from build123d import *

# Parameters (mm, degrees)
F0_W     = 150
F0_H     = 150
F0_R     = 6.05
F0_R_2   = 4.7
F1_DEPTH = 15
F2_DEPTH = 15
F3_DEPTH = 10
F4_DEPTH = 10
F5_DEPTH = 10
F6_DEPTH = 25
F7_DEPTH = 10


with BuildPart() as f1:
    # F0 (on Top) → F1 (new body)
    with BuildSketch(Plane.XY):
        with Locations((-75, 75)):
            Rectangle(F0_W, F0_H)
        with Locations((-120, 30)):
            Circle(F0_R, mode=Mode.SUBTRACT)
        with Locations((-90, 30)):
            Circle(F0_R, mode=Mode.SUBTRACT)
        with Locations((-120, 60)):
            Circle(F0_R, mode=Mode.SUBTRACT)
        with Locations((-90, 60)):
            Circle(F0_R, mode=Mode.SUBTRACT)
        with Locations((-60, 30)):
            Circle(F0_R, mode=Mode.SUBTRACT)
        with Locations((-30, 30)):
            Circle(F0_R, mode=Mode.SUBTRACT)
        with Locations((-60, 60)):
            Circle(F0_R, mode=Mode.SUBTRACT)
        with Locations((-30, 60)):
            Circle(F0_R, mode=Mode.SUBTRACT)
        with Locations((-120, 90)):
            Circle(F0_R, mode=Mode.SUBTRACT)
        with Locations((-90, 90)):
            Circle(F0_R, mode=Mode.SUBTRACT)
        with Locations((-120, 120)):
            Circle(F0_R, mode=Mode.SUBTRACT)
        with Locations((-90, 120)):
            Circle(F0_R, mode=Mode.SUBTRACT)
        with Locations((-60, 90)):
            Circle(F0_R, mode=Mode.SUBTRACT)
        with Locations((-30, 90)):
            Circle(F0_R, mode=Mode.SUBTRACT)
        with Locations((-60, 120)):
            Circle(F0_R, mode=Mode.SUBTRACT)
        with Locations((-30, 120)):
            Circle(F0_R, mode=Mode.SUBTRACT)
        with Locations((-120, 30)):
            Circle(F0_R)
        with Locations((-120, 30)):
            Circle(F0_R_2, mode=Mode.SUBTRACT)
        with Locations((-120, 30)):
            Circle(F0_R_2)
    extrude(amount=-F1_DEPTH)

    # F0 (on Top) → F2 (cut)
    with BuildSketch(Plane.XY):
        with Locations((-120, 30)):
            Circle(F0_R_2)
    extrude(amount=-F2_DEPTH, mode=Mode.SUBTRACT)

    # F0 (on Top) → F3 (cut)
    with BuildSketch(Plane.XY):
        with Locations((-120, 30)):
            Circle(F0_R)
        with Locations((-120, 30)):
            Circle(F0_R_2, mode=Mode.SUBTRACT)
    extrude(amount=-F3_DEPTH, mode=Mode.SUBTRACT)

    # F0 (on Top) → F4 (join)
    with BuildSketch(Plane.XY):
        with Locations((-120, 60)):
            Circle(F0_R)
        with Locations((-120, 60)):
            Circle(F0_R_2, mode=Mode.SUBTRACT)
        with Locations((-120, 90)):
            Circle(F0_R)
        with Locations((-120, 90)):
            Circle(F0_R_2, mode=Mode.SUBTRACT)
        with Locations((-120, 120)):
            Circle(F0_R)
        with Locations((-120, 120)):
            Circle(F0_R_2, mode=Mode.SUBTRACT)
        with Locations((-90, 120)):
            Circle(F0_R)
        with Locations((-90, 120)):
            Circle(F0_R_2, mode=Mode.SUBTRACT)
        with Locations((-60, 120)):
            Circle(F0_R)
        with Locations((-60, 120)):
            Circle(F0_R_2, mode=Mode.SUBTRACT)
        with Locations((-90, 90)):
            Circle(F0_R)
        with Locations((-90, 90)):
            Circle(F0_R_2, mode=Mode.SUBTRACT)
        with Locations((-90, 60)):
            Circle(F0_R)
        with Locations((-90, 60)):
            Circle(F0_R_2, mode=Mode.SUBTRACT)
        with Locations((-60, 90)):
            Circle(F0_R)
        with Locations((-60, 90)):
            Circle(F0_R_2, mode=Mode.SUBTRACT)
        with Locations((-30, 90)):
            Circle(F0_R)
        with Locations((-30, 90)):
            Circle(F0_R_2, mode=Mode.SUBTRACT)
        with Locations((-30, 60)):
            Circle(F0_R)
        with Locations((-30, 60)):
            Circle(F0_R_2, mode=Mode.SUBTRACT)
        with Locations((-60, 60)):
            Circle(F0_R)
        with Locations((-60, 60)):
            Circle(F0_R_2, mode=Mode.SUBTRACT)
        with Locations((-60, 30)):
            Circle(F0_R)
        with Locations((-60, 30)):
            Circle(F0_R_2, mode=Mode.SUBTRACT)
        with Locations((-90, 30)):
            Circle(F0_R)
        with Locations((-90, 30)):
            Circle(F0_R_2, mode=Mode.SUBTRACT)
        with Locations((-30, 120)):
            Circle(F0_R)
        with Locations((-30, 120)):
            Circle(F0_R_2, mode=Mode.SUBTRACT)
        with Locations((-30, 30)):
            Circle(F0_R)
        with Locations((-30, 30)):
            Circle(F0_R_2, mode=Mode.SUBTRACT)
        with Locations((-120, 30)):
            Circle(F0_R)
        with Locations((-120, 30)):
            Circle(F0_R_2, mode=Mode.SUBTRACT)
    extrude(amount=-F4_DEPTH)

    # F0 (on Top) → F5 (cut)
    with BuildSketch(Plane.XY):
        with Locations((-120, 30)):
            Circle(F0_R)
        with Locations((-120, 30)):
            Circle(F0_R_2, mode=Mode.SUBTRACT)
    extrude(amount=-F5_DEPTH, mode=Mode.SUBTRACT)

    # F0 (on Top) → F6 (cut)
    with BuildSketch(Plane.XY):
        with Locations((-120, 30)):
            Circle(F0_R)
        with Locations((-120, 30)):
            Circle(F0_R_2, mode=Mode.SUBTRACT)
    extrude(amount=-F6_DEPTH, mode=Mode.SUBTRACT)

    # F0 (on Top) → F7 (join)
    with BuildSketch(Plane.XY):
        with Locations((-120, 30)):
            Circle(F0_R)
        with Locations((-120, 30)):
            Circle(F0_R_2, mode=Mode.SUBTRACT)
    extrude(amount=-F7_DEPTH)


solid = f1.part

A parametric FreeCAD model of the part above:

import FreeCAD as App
import Part
import Sketcher

V = App.Vector
Q = App.Units.Quantity


def add_polygon(sketch, points):
    """Adds a closed chain of lines whose ends are joined by coincident constraints."""
    first, n = sketch.GeometryCount, len(points)
    for a, b in zip(points, points[1:] + points[:1]):
        sketch.addGeometry(Part.LineSegment(App.Vector(*a, 0), App.Vector(*b, 0)), False)
    for i in range(n):
        sketch.addConstraint(Sketcher.Constraint("Coincident", first + i, 2, first + (i + 1) % n, 1))

doc = App.newDocument("Part")
body = doc.addObject("PartDesign::Body", "Body")

sketch1 = body.newObject("Sketcher::SketchObject", "Sketch")
sketch1.AttachmentSupport = (doc.getObject("XY_Plane"), [""])
sketch1.MapMode = "FlatFace"
add_polygon(sketch1, [(-150, 150), (-150, 0), (0, 0), (0, 150)])
sketch1.addGeometry(Part.Circle(V(-90, 30, 0), V(0, 0, 1), 6.05), False)
sketch1.addGeometry(Part.Circle(V(-120, 60, 0), V(0, 0, 1), 6.05), False)
sketch1.addGeometry(Part.Circle(V(-90, 60, 0), V(0, 0, 1), 6.05), False)
sketch1.addGeometry(Part.Circle(V(-60, 30, 0), V(0, 0, 1), 6.05), False)
sketch1.addGeometry(Part.Circle(V(-30, 30, 0), V(0, 0, 1), 6.05), False)
sketch1.addGeometry(Part.Circle(V(-60, 60, 0), V(0, 0, 1), 6.05), False)
sketch1.addGeometry(Part.Circle(V(-30, 60, 0), V(0, 0, 1), 6.05), False)
sketch1.addGeometry(Part.Circle(V(-120, 90, 0), V(0, 0, 1), 6.05), False)
sketch1.addGeometry(Part.Circle(V(-90, 90, 0), V(0, 0, 1), 6.05), False)
sketch1.addGeometry(Part.Circle(V(-120, 120, 0), V(0, 0, 1), 6.05), False)
sketch1.addGeometry(Part.Circle(V(-90, 120, 0), V(0, 0, 1), 6.05), False)
sketch1.addGeometry(Part.Circle(V(-60, 90, 0), V(0, 0, 1), 6.05), False)
sketch1.addGeometry(Part.Circle(V(-30, 90, 0), V(0, 0, 1), 6.05), False)
sketch1.addGeometry(Part.Circle(V(-60, 120, 0), V(0, 0, 1), 6.05), False)
sketch1.addGeometry(Part.Circle(V(-30, 120, 0), V(0, 0, 1), 6.05), False)
sketch1.addConstraint(Sketcher.Constraint("Vertical", 0))
sketch1.addConstraint(Sketcher.Constraint("Horizontal", 1))
sketch1.addConstraint(Sketcher.Constraint("Vertical", 2))
sketch1.addConstraint(Sketcher.Constraint("Horizontal", 3))
sketch1.addConstraint(Sketcher.Constraint("Coincident", 1, 2, -1, 1))
sketch1.addConstraint(Sketcher.Constraint("Equal", 4, 5))
sketch1.addConstraint(Sketcher.Constraint("Equal", 5, 6))
sketch1.addConstraint(Sketcher.Constraint("Equal", 6, 7))
sketch1.addConstraint(Sketcher.Constraint("Equal", 7, 8))
sketch1.addConstraint(Sketcher.Constraint("Equal", 8, 9))
sketch1.addConstraint(Sketcher.Constraint("Equal", 9, 10))
sketch1.addConstraint(Sketcher.Constraint("Equal", 10, 11))
sketch1.addConstraint(Sketcher.Constraint("Equal", 11, 12))
sketch1.addConstraint(Sketcher.Constraint("Equal", 12, 13))
sketch1.addConstraint(Sketcher.Constraint("Equal", 13, 14))
sketch1.addConstraint(Sketcher.Constraint("Equal", 14, 15))
sketch1.addConstraint(Sketcher.Constraint("Equal", 15, 16))
sketch1.addConstraint(Sketcher.Constraint("Equal", 16, 17))
sketch1.addConstraint(Sketcher.Constraint("Equal", 17, 18))
sketch1.addConstraint(Sketcher.Constraint("Horizontal", 5, 3, 6, 3))
sketch1.addConstraint(Sketcher.Constraint("Horizontal", 4, 3, 7, 3))
sketch1.addConstraint(Sketcher.Constraint("Horizontal", 7, 3, 8, 3))
sketch1.addConstraint(Sketcher.Constraint("Horizontal", 6, 3, 9, 3))
sketch1.addConstraint(Sketcher.Constraint("Horizontal", 9, 3, 10, 3))
sketch1.addConstraint(Sketcher.Constraint("Horizontal", 11, 3, 12, 3))
sketch1.addConstraint(Sketcher.Constraint("Horizontal", 13, 3, 14, 3))
sketch1.addConstraint(Sketcher.Constraint("Horizontal", 12, 3, 15, 3))
sketch1.addConstraint(Sketcher.Constraint("Horizontal", 15, 3, 16, 3))
sketch1.addConstraint(Sketcher.Constraint("Horizontal", 14, 3, 17, 3))
sketch1.addConstraint(Sketcher.Constraint("Horizontal", 17, 3, 18, 3))
sketch1.addConstraint(Sketcher.Constraint("Vertical", 4, 3, 6, 3))
sketch1.addConstraint(Sketcher.Constraint("Vertical", 7, 3, 9, 3))
sketch1.addConstraint(Sketcher.Constraint("Vertical", 8, 3, 10, 3))
sketch1.addConstraint(Sketcher.Constraint("Vertical", 5, 3, 11, 3))
sketch1.addConstraint(Sketcher.Constraint("Vertical", 6, 3, 12, 3))
sketch1.addConstraint(Sketcher.Constraint("Vertical", 11, 3, 13, 3))
sketch1.addConstraint(Sketcher.Constraint("Vertical", 12, 3, 14, 3))
sketch1.addConstraint(Sketcher.Constraint("Vertical", 9, 3, 15, 3))
sketch1.addConstraint(Sketcher.Constraint("Vertical", 10, 3, 16, 3))
sketch1.addConstraint(Sketcher.Constraint("Vertical", 15, 3, 17, 3))
sketch1.addConstraint(Sketcher.Constraint("Vertical", 16, 3, 18, 3))
sketch1.addConstraint(Sketcher.Constraint("Equal", 3, 0))
sketch1.addConstraint(Sketcher.Constraint("Diameter", 4, Q("12.1 mm")))
sketch1.addConstraint(Sketcher.Constraint("DistanceX", 1, 1, 1, 2, Q("150 mm")))
sketch1.addConstraint(Sketcher.Constraint("DistanceX", 4, 3, -1, 1, Q("90 mm")))
sketch1.addConstraint(Sketcher.Constraint("DistanceY", -1, 1, 4, 3, Q("30 mm")))
sketch1.addConstraint(Sketcher.Constraint("DistanceX", 5, 3, -1, 1, Q("120 mm")))
sketch1.addConstraint(Sketcher.Constraint("DistanceY", -1, 1, 5, 3, Q("60 mm")))
sketch1.addConstraint(Sketcher.Constraint("DistanceX", 7, 3, -1, 1, Q("60 mm")))
sketch1.addConstraint(Sketcher.Constraint("DistanceX", 8, 3, -1, 1, Q("30 mm")))
sketch1.addConstraint(Sketcher.Constraint("DistanceY", -1, 1, 11, 3, Q("90 mm")))
sketch1.addConstraint(Sketcher.Constraint("DistanceY", -1, 1, 13, 3, Q("120 mm")))
pad1 = body.newObject("PartDesign::Pad", "Pad")
pad1.Profile = sketch1
pad1.Length = 15
pad1.Reversed = True

sketch2 = body.newObject("Sketcher::SketchObject", "Sketch001")
sketch2.AttachmentSupport = (doc.getObject("XY_Plane"), [""])
sketch2.MapMode = "FlatFace"
sketch2.addGeometry(Part.Circle(V(-120, 30, 0), V(0, 0, 1), 4.7), False)
sketch2.addConstraint(Sketcher.Constraint("Diameter", 0, Q("9.4 mm")))
sketch2.addConstraint(Sketcher.Constraint("DistanceX", 0, 3, -1, 1, Q("120 mm")))
sketch2.addConstraint(Sketcher.Constraint("DistanceY", -1, 1, 0, 3, Q("30 mm")))
pocket1 = body.newObject("PartDesign::Pocket", "Pocket")
pocket1.Profile = sketch2
pocket1.Length = 15

sketch3 = body.newObject("Sketcher::SketchObject", "Sketch002")
sketch3.AttachmentSupport = (doc.getObject("XY_Plane"), [""])
sketch3.MapMode = "FlatFace"
sketch3.addGeometry(Part.Circle(V(-120, 30, 0), V(0, 0, 1), 6.05), False)
sketch3.addGeometry(Part.Circle(V(-120, 30, 0), V(0, 0, 1), 4.7), False)
sketch3.addConstraint(Sketcher.Constraint("Coincident", 1, 3, 0, 3))
sketch3.addConstraint(Sketcher.Constraint("Diameter", 0, Q("12.1 mm")))
sketch3.addConstraint(Sketcher.Constraint("Diameter", 1, Q("9.4 mm")))
sketch3.addConstraint(Sketcher.Constraint("DistanceX", 0, 3, -1, 1, Q("120 mm")))
sketch3.addConstraint(Sketcher.Constraint("DistanceY", -1, 1, 0, 3, Q("30 mm")))
pocket2 = body.newObject("PartDesign::Pocket", "Pocket001")
pocket2.Profile = sketch3
pocket2.Length = 10

sketch4 = body.newObject("Sketcher::SketchObject", "Sketch003")
sketch4.AttachmentSupport = (doc.getObject("XY_Plane"), [""])
sketch4.MapMode = "FlatFace"
sketch4.addGeometry(Part.Circle(V(-120, 60, 0), V(0, 0, 1), 6.05), False)
sketch4.addGeometry(Part.Circle(V(-120, 60, 0), V(0, 0, 1), 4.7), False)
sketch4.addGeometry(Part.Circle(V(-120, 90, 0), V(0, 0, 1), 6.05), False)
sketch4.addGeometry(Part.Circle(V(-120, 90, 0), V(0, 0, 1), 4.7), False)
sketch4.addGeometry(Part.Circle(V(-120, 120, 0), V(0, 0, 1), 6.05), False)
sketch4.addGeometry(Part.Circle(V(-120, 120, 0), V(0, 0, 1), 4.7), False)
sketch4.addGeometry(Part.Circle(V(-90, 120, 0), V(0, 0, 1), 6.05), False)
sketch4.addGeometry(Part.Circle(V(-90, 120, 0), V(0, 0, 1), 4.7), False)
sketch4.addGeometry(Part.Circle(V(-60, 120, 0), V(0, 0, 1), 6.05), False)
sketch4.addGeometry(Part.Circle(V(-60, 120, 0), V(0, 0, 1), 4.7), False)
sketch4.addGeometry(Part.Circle(V(-90, 90, 0), V(0, 0, 1), 6.05), False)
sketch4.addGeometry(Part.Circle(V(-90, 90, 0), V(0, 0, 1), 4.7), False)
sketch4.addGeometry(Part.Circle(V(-90, 60, 0), V(0, 0, 1), 6.05), False)
sketch4.addGeometry(Part.Circle(V(-90, 60, 0), V(0, 0, 1), 4.7), False)
sketch4.addGeometry(Part.Circle(V(-60, 90, 0), V(0, 0, 1), 6.05), False)
sketch4.addGeometry(Part.Circle(V(-60, 90, 0), V(0, 0, 1), 4.7), False)
sketch4.addGeometry(Part.Circle(V(-30, 90, 0), V(0, 0, 1), 6.05), False)
sketch4.addGeometry(Part.Circle(V(-30, 90, 0), V(0, 0, 1), 4.7), False)
sketch4.addGeometry(Part.Circle(V(-30, 60, 0), V(0, 0, 1), 6.05), False)
sketch4.addGeometry(Part.Circle(V(-30, 60, 0), V(0, 0, 1), 4.7), False)
sketch4.addGeometry(Part.Circle(V(-60, 60, 0), V(0, 0, 1), 6.05), False)
sketch4.addGeometry(Part.Circle(V(-60, 60, 0), V(0, 0, 1), 4.7), False)
sketch4.addGeometry(Part.Circle(V(-60, 30, 0), V(0, 0, 1), 6.05), False)
sketch4.addGeometry(Part.Circle(V(-60, 30, 0), V(0, 0, 1), 4.7), False)
sketch4.addGeometry(Part.Circle(V(-90, 30, 0), V(0, 0, 1), 6.05), False)
sketch4.addGeometry(Part.Circle(V(-90, 30, 0), V(0, 0, 1), 4.7), False)
sketch4.addGeometry(Part.Circle(V(-30, 120, 0), V(0, 0, 1), 6.05), False)
sketch4.addGeometry(Part.Circle(V(-30, 120, 0), V(0, 0, 1), 4.7), False)
sketch4.addGeometry(Part.Circle(V(-30, 30, 0), V(0, 0, 1), 6.05), False)
sketch4.addGeometry(Part.Circle(V(-30, 30, 0), V(0, 0, 1), 4.7), False)
sketch4.addGeometry(Part.Circle(V(-120, 30, 0), V(0, 0, 1), 6.05), False)
sketch4.addGeometry(Part.Circle(V(-120, 30, 0), V(0, 0, 1), 4.7), False)
sketch4.addConstraint(Sketcher.Constraint("Coincident", 1, 3, 0, 3))
sketch4.addConstraint(Sketcher.Constraint("Coincident", 3, 3, 2, 3))
sketch4.addConstraint(Sketcher.Constraint("Coincident", 5, 3, 4, 3))
sketch4.addConstraint(Sketcher.Constraint("Coincident", 7, 3, 6, 3))
sketch4.addConstraint(Sketcher.Constraint("Coincident", 9, 3, 8, 3))
sketch4.addConstraint(Sketcher.Constraint("Coincident", 11, 3, 10, 3))
sketch4.addConstraint(Sketcher.Constraint("Coincident", 13, 3, 12, 3))
sketch4.addConstraint(Sketcher.Constraint("Coincident", 15, 3, 14, 3))
sketch4.addConstraint(Sketcher.Constraint("Coincident", 17, 3, 16, 3))
sketch4.addConstraint(Sketcher.Constraint("Coincident", 19, 3, 18, 3))
sketch4.addConstraint(Sketcher.Constraint("Coincident", 21, 3, 20, 3))
sketch4.addConstraint(Sketcher.Constraint("Coincident", 23, 3, 22, 3))
sketch4.addConstraint(Sketcher.Constraint("Coincident", 25, 3, 24, 3))
sketch4.addConstraint(Sketcher.Constraint("Coincident", 27, 3, 26, 3))
sketch4.addConstraint(Sketcher.Constraint("Coincident", 29, 3, 28, 3))
sketch4.addConstraint(Sketcher.Constraint("Coincident", 31, 3, 30, 3))
sketch4.addConstraint(Sketcher.Constraint("Equal", 0, 2))
sketch4.addConstraint(Sketcher.Constraint("Equal", 1, 3))
sketch4.addConstraint(Sketcher.Constraint("Equal", 2, 4))
sketch4.addConstraint(Sketcher.Constraint("Equal", 3, 5))
sketch4.addConstraint(Sketcher.Constraint("Equal", 4, 6))
sketch4.addConstraint(Sketcher.Constraint("Equal", 5, 7))
sketch4.addConstraint(Sketcher.Constraint("Equal", 6, 8))
sketch4.addConstraint(Sketcher.Constraint("Equal", 7, 9))
sketch4.addConstraint(Sketcher.Constraint("Equal", 8, 10))
sketch4.addConstraint(Sketcher.Constraint("Equal", 9, 11))
sketch4.addConstraint(Sketcher.Constraint("Equal", 10, 12))
sketch4.addConstraint(Sketcher.Constraint("Equal", 11, 13))
sketch4.addConstraint(Sketcher.Constraint("Equal", 12, 14))
sketch4.addConstraint(Sketcher.Constraint("Equal", 13, 15))
sketch4.addConstraint(Sketcher.Constraint("Equal", 14, 16))
sketch4.addConstraint(Sketcher.Constraint("Equal", 15, 17))
sketch4.addConstraint(Sketcher.Constraint("Equal", 16, 18))
sketch4.addConstraint(Sketcher.Constraint("Equal", 17, 19))
sketch4.addConstraint(Sketcher.Constraint("Equal", 18, 20))
sketch4.addConstraint(Sketcher.Constraint("Equal", 19, 21))
sketch4.addConstraint(Sketcher.Constraint("Equal", 20, 22))
sketch4.addConstraint(Sketcher.Constraint("Equal", 21, 23))
sketch4.addConstraint(Sketcher.Constraint("Equal", 22, 24))
sketch4.addConstraint(Sketcher.Constraint("Equal", 23, 25))
sketch4.addConstraint(Sketcher.Constraint("Equal", 24, 26))
sketch4.addConstraint(Sketcher.Constraint("Equal", 25, 27))
sketch4.addConstraint(Sketcher.Constraint("Equal", 26, 28))
sketch4.addConstraint(Sketcher.Constraint("Equal", 27, 29))
sketch4.addConstraint(Sketcher.Constraint("Equal", 28, 30))
sketch4.addConstraint(Sketcher.Constraint("Equal", 29, 31))
sketch4.addConstraint(Sketcher.Constraint("Horizontal", 5, 3, 6, 3))
sketch4.addConstraint(Sketcher.Constraint("Horizontal", 7, 3, 8, 3))
sketch4.addConstraint(Sketcher.Constraint("Horizontal", 3, 3, 10, 3))
sketch4.addConstraint(Sketcher.Constraint("Horizontal", 1, 3, 12, 3))
sketch4.addConstraint(Sketcher.Constraint("Horizontal", 11, 3, 14, 3))
sketch4.addConstraint(Sketcher.Constraint("Horizontal", 15, 3, 16, 3))
sketch4.addConstraint(Sketcher.Constraint("Horizontal", 13, 3, 18, 3))
sketch4.addConstraint(Sketcher.Constraint("Horizontal", 19, 3, 20, 3))
sketch4.addConstraint(Sketcher.Constraint("Horizontal", 23, 3, 24, 3))
sketch4.addConstraint(Sketcher.Constraint("Horizontal", 9, 3, 26, 3))
sketch4.addConstraint(Sketcher.Constraint("Horizontal", 25, 3, 28, 3))
sketch4.addConstraint(Sketcher.Constraint("Horizontal", 29, 3, 30, 3))
sketch4.addConstraint(Sketcher.Constraint("Vertical", 1, 3, 2, 3))
sketch4.addConstraint(Sketcher.Constraint("Vertical", 3, 3, 4, 3))
sketch4.addConstraint(Sketcher.Constraint("Vertical", 7, 3, 10, 3))
sketch4.addConstraint(Sketcher.Constraint("Vertical", 11, 3, 12, 3))
sketch4.addConstraint(Sketcher.Constraint("Vertical", 9, 3, 14, 3))
sketch4.addConstraint(Sketcher.Constraint("Vertical", 17, 3, 18, 3))
sketch4.addConstraint(Sketcher.Constraint("Vertical", 15, 3, 20, 3))
sketch4.addConstraint(Sketcher.Constraint("Vertical", 21, 3, 22, 3))
sketch4.addConstraint(Sketcher.Constraint("Vertical", 13, 3, 24, 3))
sketch4.addConstraint(Sketcher.Constraint("Vertical", 19, 3, 26, 3))
sketch4.addConstraint(Sketcher.Constraint("Vertical", 27, 3, 28, 3))
sketch4.addConstraint(Sketcher.Constraint("Vertical", 5, 3, 30, 3))
sketch4.addConstraint(Sketcher.Constraint("Diameter", 0, Q("12.1 mm")))
sketch4.addConstraint(Sketcher.Constraint("Diameter", 1, Q("9.4 mm")))
sketch4.addConstraint(Sketcher.Constraint("DistanceX", 0, 3, -1, 1, Q("120 mm")))
sketch4.addConstraint(Sketcher.Constraint("DistanceY", -1, 1, 0, 3, Q("60 mm")))
sketch4.addConstraint(Sketcher.Constraint("DistanceY", -1, 1, 2, 3, Q("90 mm")))
sketch4.addConstraint(Sketcher.Constraint("DistanceY", -1, 1, 4, 3, Q("120 mm")))
sketch4.addConstraint(Sketcher.Constraint("DistanceX", 6, 3, -1, 1, Q("90 mm")))
sketch4.addConstraint(Sketcher.Constraint("DistanceX", 8, 3, -1, 1, Q("60 mm")))
sketch4.addConstraint(Sketcher.Constraint("DistanceX", 16, 3, -1, 1, Q("30 mm")))
sketch4.addConstraint(Sketcher.Constraint("DistanceY", -1, 1, 22, 3, Q("30 mm")))
pad2 = body.newObject("PartDesign::Pad", "Pad001")
pad2.Profile = sketch4
pad2.Length = 10
pad2.Reversed = True

sketch5 = body.newObject("Sketcher::SketchObject", "Sketch004")
sketch5.AttachmentSupport = (doc.getObject("XY_Plane"), [""])
sketch5.MapMode = "FlatFace"
sketch5.addGeometry(Part.Circle(V(-120, 30, 0), V(0, 0, 1), 6.05), False)
sketch5.addGeometry(Part.Circle(V(-120, 30, 0), V(0, 0, 1), 4.7), False)
sketch5.addConstraint(Sketcher.Constraint("Coincident", 1, 3, 0, 3))
sketch5.addConstraint(Sketcher.Constraint("Diameter", 0, Q("12.1 mm")))
sketch5.addConstraint(Sketcher.Constraint("Diameter", 1, Q("9.4 mm")))
sketch5.addConstraint(Sketcher.Constraint("DistanceX", 0, 3, -1, 1, Q("120 mm")))
sketch5.addConstraint(Sketcher.Constraint("DistanceY", -1, 1, 0, 3, Q("30 mm")))
pocket3 = body.newObject("PartDesign::Pocket", "Pocket002")
pocket3.Profile = sketch5
pocket3.Length = 10

sketch6 = body.newObject("Sketcher::SketchObject", "Sketch005")
sketch6.AttachmentSupport = (doc.getObject("XY_Plane"), [""])
sketch6.MapMode = "FlatFace"
sketch6.addGeometry(Part.Circle(V(-120, 30, 0), V(0, 0, 1), 6.05), False)
sketch6.addGeometry(Part.Circle(V(-120, 30, 0), V(0, 0, 1), 4.7), False)
sketch6.addConstraint(Sketcher.Constraint("Coincident", 1, 3, 0, 3))
sketch6.addConstraint(Sketcher.Constraint("Diameter", 0, Q("12.1 mm")))
sketch6.addConstraint(Sketcher.Constraint("Diameter", 1, Q("9.4 mm")))
sketch6.addConstraint(Sketcher.Constraint("DistanceX", 0, 3, -1, 1, Q("120 mm")))
sketch6.addConstraint(Sketcher.Constraint("DistanceY", -1, 1, 0, 3, Q("30 mm")))
pocket4 = body.newObject("PartDesign::Pocket", "Pocket003")
pocket4.Profile = sketch6
pocket4.Length = 25

sketch7 = body.newObject("Sketcher::SketchObject", "Sketch006")
sketch7.AttachmentSupport = (doc.getObject("XY_Plane"), [""])
sketch7.MapMode = "FlatFace"
sketch7.addGeometry(Part.Circle(V(-120, 30, 0), V(0, 0, 1), 6.05), False)
sketch7.addGeometry(Part.Circle(V(-120, 30, 0), V(0, 0, 1), 4.7), False)
sketch7.addConstraint(Sketcher.Constraint("Coincident", 1, 3, 0, 3))
sketch7.addConstraint(Sketcher.Constraint("Diameter", 0, Q("12.1 mm")))
sketch7.addConstraint(Sketcher.Constraint("Diameter", 1, Q("9.4 mm")))
sketch7.addConstraint(Sketcher.Constraint("DistanceX", 0, 3, -1, 1, Q("120 mm")))
sketch7.addConstraint(Sketcher.Constraint("DistanceY", -1, 1, 0, 3, Q("30 mm")))
pad3 = body.newObject("PartDesign::Pad", "Pad002")
pad3.Profile = sketch7
pad3.Length = 10
pad3.Reversed = True

doc.recompute()
